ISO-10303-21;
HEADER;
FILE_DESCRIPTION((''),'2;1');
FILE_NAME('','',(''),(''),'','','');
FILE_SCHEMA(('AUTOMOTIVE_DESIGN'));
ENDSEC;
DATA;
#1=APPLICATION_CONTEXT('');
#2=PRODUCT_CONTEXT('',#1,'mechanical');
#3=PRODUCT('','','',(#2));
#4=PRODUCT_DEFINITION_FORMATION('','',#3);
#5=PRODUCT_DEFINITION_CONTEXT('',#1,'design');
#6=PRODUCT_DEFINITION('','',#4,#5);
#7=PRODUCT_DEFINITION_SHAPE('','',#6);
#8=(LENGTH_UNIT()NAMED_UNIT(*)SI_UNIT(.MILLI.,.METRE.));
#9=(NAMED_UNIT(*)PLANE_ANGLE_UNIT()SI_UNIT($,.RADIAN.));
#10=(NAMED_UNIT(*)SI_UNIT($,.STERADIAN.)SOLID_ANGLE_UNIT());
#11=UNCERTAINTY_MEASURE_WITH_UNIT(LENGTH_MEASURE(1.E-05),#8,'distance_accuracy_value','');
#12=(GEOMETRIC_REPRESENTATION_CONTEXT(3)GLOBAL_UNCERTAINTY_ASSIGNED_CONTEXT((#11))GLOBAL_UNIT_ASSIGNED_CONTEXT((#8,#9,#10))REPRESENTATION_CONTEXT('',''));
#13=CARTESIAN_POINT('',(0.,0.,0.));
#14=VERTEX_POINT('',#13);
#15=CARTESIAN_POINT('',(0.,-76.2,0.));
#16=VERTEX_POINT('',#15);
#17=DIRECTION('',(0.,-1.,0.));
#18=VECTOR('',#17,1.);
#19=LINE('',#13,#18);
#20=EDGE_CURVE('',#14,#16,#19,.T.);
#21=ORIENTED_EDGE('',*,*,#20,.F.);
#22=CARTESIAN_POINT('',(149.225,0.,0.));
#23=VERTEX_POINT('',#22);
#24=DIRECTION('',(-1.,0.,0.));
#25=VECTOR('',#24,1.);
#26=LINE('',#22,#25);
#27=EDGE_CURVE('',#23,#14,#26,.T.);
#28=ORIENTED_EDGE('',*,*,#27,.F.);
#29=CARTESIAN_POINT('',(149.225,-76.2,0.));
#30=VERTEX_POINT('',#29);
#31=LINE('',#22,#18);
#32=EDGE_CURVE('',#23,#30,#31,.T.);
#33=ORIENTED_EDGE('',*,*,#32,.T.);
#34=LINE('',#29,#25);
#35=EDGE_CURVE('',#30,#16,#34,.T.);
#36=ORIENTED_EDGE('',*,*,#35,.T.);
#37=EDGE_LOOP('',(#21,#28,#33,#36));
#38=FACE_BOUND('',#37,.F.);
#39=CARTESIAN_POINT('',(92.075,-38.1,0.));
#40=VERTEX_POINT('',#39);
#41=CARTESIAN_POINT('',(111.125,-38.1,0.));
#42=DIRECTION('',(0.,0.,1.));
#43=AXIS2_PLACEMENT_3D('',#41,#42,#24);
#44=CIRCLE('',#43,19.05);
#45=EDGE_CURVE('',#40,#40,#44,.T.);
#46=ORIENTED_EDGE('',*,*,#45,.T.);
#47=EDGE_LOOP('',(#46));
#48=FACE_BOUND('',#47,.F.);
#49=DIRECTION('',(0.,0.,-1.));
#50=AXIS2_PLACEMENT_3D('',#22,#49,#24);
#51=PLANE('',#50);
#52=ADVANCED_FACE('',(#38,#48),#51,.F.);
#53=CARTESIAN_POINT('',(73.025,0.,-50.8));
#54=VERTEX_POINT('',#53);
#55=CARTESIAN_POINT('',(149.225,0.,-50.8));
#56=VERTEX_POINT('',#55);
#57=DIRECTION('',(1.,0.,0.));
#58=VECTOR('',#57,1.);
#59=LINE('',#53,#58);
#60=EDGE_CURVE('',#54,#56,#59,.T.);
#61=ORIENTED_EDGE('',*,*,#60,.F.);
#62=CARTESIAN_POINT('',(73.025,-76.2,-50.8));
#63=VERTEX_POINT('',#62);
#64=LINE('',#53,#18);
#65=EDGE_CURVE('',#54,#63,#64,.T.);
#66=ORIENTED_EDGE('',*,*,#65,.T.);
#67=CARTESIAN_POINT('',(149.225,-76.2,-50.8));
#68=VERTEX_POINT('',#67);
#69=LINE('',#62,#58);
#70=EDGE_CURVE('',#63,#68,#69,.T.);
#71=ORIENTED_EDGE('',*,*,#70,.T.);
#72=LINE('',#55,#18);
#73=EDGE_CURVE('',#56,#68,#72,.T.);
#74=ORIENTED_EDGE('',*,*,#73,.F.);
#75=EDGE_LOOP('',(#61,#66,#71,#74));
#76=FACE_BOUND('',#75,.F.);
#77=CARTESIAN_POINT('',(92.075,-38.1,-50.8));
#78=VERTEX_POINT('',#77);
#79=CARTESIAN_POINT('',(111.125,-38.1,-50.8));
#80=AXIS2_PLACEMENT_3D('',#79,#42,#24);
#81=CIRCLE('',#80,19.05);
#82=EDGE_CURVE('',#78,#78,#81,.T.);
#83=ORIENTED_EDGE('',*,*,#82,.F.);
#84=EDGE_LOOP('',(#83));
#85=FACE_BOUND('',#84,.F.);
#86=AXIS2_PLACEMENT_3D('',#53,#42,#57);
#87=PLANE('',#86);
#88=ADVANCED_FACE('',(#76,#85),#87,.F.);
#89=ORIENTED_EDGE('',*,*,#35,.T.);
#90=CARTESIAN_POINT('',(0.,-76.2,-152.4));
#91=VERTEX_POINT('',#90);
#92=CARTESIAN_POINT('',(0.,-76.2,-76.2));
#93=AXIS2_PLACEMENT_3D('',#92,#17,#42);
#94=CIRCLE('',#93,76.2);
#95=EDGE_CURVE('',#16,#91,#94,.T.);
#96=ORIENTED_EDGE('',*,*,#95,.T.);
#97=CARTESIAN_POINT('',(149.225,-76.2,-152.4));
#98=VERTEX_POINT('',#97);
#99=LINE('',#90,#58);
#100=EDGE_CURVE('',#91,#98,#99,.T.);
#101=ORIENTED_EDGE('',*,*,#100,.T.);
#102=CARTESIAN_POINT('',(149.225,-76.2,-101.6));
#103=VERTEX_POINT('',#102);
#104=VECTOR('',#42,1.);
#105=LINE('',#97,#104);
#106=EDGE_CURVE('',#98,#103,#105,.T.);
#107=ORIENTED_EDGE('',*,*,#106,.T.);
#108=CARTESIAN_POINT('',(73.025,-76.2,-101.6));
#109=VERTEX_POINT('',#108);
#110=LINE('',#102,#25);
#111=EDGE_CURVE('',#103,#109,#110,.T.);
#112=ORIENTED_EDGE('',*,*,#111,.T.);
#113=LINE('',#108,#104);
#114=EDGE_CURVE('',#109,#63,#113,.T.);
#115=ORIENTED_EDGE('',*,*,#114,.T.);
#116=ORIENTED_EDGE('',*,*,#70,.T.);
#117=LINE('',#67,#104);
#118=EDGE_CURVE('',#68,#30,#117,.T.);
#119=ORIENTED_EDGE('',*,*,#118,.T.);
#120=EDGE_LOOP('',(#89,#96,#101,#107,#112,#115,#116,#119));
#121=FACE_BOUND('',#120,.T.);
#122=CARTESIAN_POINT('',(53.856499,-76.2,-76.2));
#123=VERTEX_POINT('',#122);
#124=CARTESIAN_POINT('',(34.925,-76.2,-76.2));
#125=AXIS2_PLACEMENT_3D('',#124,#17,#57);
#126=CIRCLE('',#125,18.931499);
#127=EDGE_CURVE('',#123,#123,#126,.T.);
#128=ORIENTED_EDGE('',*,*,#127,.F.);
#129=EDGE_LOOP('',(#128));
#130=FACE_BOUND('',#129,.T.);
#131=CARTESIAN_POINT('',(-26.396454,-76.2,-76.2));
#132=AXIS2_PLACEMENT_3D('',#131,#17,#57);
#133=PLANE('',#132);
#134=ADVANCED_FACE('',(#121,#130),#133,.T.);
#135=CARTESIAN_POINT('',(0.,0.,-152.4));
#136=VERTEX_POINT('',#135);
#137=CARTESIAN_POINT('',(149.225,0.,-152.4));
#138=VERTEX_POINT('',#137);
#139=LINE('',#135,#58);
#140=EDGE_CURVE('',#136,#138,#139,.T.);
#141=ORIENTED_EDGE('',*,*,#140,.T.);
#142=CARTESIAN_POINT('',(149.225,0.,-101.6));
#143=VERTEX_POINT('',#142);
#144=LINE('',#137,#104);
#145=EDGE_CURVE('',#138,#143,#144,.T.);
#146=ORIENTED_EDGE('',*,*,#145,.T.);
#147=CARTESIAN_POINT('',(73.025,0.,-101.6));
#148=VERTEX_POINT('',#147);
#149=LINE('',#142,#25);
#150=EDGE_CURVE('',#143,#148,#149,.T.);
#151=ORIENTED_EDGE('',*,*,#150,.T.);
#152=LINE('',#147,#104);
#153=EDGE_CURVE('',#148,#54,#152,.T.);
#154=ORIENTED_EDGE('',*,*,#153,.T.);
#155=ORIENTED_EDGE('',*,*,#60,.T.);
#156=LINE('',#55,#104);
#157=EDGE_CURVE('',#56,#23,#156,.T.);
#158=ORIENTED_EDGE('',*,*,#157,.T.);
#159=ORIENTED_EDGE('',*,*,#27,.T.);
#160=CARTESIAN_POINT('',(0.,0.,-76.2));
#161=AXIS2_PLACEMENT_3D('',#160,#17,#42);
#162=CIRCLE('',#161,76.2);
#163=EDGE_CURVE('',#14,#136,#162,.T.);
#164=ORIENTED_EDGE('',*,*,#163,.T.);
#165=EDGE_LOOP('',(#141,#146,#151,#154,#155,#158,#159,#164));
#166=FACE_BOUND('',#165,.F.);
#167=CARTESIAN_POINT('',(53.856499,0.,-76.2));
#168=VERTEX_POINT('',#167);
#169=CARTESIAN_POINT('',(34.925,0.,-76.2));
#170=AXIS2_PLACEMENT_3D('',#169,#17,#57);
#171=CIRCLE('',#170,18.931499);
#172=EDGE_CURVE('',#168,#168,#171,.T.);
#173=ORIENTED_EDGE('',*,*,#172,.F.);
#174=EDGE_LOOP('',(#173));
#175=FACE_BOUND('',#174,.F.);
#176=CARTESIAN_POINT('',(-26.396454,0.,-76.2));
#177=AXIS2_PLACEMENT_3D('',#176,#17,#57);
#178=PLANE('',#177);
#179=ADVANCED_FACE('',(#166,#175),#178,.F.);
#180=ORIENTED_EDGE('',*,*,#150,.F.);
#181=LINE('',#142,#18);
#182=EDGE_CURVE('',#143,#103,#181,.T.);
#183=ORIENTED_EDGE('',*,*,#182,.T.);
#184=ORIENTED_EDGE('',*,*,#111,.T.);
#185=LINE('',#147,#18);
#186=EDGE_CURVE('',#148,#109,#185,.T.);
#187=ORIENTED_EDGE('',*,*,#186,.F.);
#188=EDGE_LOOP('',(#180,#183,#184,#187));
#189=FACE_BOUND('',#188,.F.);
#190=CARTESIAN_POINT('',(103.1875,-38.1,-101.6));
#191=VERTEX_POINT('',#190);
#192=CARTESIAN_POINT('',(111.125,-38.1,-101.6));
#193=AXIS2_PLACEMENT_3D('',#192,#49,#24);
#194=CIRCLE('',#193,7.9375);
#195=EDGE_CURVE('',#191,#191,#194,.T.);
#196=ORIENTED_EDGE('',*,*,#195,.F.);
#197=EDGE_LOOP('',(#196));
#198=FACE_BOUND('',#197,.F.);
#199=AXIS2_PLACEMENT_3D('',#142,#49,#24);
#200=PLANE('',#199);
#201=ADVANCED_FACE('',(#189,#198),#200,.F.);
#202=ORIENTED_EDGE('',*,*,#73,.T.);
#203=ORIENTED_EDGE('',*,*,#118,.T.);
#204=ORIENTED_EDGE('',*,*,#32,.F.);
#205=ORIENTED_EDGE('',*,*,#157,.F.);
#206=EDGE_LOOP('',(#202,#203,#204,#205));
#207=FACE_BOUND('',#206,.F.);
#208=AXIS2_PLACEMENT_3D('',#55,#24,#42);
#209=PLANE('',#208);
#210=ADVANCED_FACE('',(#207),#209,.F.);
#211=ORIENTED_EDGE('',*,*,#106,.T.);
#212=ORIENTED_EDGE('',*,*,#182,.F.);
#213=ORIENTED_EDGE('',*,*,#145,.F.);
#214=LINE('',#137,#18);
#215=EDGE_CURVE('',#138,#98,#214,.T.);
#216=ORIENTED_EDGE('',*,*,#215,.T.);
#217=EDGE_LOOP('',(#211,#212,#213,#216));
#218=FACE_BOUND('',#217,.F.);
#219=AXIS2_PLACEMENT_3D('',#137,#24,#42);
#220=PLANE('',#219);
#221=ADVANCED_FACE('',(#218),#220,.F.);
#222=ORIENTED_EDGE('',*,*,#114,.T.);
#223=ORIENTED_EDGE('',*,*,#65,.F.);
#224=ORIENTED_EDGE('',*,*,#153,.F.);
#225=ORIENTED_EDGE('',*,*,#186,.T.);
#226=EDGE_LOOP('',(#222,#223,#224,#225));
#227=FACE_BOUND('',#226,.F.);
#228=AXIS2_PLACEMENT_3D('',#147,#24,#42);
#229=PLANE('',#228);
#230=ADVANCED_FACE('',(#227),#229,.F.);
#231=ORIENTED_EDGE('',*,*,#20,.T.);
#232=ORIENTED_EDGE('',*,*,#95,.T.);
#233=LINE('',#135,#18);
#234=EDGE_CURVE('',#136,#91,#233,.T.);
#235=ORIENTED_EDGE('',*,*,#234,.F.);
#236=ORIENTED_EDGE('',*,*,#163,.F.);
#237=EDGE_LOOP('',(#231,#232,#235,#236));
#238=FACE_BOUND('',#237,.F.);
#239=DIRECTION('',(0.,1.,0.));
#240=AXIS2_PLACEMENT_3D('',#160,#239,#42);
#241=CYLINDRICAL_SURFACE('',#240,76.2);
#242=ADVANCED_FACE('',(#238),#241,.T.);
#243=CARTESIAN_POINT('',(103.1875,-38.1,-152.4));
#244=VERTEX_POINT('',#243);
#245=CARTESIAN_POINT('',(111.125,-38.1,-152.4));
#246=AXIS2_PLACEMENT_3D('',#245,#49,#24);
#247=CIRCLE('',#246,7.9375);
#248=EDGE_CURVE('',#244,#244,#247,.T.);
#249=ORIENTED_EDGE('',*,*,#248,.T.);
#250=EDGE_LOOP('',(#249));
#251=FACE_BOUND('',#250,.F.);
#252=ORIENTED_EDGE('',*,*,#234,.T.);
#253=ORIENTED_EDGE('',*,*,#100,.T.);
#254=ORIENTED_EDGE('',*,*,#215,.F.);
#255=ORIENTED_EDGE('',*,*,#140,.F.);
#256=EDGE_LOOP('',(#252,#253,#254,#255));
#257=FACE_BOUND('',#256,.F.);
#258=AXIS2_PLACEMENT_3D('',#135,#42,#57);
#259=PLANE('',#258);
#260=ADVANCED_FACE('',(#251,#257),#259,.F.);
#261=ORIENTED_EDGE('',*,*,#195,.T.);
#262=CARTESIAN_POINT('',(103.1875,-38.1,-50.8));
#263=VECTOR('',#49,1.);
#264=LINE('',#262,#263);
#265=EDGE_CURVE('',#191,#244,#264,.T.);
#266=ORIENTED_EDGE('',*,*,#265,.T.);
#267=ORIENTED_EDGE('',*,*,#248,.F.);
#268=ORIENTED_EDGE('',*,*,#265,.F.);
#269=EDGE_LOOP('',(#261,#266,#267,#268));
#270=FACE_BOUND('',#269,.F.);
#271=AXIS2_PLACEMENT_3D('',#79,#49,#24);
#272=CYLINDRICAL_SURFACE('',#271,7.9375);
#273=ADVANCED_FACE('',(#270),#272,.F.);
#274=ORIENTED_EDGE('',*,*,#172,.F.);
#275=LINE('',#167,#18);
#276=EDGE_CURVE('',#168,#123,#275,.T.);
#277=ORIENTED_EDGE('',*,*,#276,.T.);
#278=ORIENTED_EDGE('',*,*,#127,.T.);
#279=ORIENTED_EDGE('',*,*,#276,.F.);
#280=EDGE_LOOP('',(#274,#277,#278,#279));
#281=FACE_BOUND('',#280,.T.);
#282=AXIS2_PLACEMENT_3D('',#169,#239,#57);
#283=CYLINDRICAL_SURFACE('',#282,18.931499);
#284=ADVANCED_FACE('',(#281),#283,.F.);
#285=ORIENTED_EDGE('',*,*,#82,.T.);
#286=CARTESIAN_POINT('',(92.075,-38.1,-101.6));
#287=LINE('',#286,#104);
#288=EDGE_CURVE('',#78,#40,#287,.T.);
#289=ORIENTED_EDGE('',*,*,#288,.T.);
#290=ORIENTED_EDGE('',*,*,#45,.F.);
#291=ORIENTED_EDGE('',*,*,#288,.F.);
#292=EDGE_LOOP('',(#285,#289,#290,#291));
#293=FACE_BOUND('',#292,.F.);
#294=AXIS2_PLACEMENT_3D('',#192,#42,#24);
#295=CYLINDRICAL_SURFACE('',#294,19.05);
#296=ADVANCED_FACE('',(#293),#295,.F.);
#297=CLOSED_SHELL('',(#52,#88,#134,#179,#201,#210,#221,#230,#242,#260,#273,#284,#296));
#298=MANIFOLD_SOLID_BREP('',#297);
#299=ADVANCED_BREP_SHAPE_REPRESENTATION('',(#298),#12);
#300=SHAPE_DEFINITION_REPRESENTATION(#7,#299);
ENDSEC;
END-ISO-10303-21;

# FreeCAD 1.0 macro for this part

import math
import FreeCAD as App
import Part
import Sketcher

V = App.Vector
Q = App.Units.Quantity

doc = App.newDocument("Part")
body = doc.addObject("PartDesign::Body", "Body")

sketch1 = doc.addObject("Sketcher::SketchObject", "Sketch")
body.addObject(sketch1)
sketch1.AttachmentSupport = (doc.XZ_Plane, [""])
sketch1.MapMode = "FlatFace"
sketch1.addGeometry([
    Part.ArcOfCircle(Part.Circle(V(0, -76, 0), V(0, 0, 1), 76), math.radians(90), math.radians(270)),
    Part.LineSegment(V(0, -152, 0), V(149, -152, 0)),
    Part.LineSegment(V(149, -152, 0), V(149, -102, 0)),
    Part.LineSegment(V(149, -102, 0), V(73, -102, 0)),
    Part.LineSegment(V(73, -102, 0), V(73, -51, 0)),
    Part.LineSegment(V(73, -51, 0), V(149, -51, 0)),
    Part.LineSegment(V(149, -51, 0), V(149, 0, 0)),
    Part.LineSegment(V(149, 0, 0), V(0, 0, 0)),
    Part.Circle(V(35, -76, 0), V(0, 0, 1), 19),
], False)
sketch1.addConstraint([
    Sketcher.Constraint("Tangent", 0, 2, 1, 1),
    Sketcher.Constraint("Coincident", 1, 2, 2, 1),
    Sketcher.Constraint("Coincident", 2, 2, 3, 1),
    Sketcher.Constraint("Coincident", 3, 2, 4, 1),
    Sketcher.Constraint("Coincident", 4, 2, 5, 1),
    Sketcher.Constraint("Coincident", 5, 2, 6, 1),
    Sketcher.Constraint("Coincident", 6, 2, 7, 1),
    Sketcher.Constraint("Tangent", 7, 2, 0, 1),
    Sketcher.Constraint("Horizontal", 1),
    Sketcher.Constraint("Vertical", 2),
    Sketcher.Constraint("Horizontal", 3),
    Sketcher.Constraint("Vertical", 4),
    Sketcher.Constraint("Horizontal", 5),
    Sketcher.Constraint("Vertical", 6),
    Sketcher.Constraint("Horizontal", 7),
    Sketcher.Constraint("Coincident", 7, 2, -1, 1),
    Sketcher.Constraint("Horizontal", 0, 3, 8, 3),
    Sketcher.Constraint("Vertical", 2, 2, 5, 2),
    Sketcher.Constraint("Equal", 2, 4),
    Sketcher.Constraint("Equal", 4, 6),
    Sketcher.Constraint("Radius", 0, Q("3 in")),
    Sketcher.Constraint("DistanceX", 3, 2, 3, 1, Q("3 in")),
    Sketcher.Constraint("DistanceX", 8, 3, 1, 2, Q("4.5 in")),
    Sketcher.Constraint("DistanceX", 1, 1, 1, 2, Q("5.875 in")),
    Sketcher.Constraint("Diameter", 8, Q("37.862998 mm")),
])
pad1 = doc.addObject("PartDesign::Pad", "Pad")
body.addObject(pad1)
pad1.Profile = sketch1
pad1.Length = Q("3 in")

sketch2 = doc.addObject("Sketcher::SketchObject", "Sketch001")
body.addObject(sketch2)
sketch2.AttachmentSupport = (doc.XY_Plane, [""])
sketch2.MapMode = "FlatFace"
sketch2.AttachmentOffset = App.Placement(V(0, 0, -2 * 25.4), App.Rotation())
sketch2.addGeometry(Part.Circle(V(111, -38, 0), V(0, 0, 1), 19), False)
sketch2.addConstraint([
    Sketcher.Constraint("Diameter", 0, Q("1.5 in")),
    Sketcher.Constraint("DistanceY", 0, 3, -1, 1, Q("1.5 in")),
    Sketcher.Constraint("DistanceX", -1, 1, 0, 3, Q("4.375 in")),
])
doc.recompute()
hole = doc.addObject("PartDesign::Hole", "Hole")
body.addObject(hole)
hole.Profile = sketch2
hole.ThreadType = "None"
hole.Diameter = Q("1.5 in")
hole.DepthType = "Dimension"
hole.Depth = Q("2 in")
hole.DrillPoint = "Flat"
hole.Reversed = True

sketch3 = doc.addObject("Sketcher::SketchObject", "Sketch002")
body.addObject(sketch3)
sketch3.AttachmentSupport = (doc.XY_Plane, [""])
sketch3.MapMode = "FlatFace"
sketch3.AttachmentOffset = App.Placement(V(0, 0, -4 * 25.4), App.Rotation())
sketch3.addGeometry(Part.Circle(V(111, -38, 0), V(0, 0, 1), 8), False)
sketch3.addConstraint([
    Sketcher.Constraint("Diameter", 0, Q("0.625 in")),
    Sketcher.Constraint("DistanceY", 0, 3, -1, 1, Q("1.5 in")),
    Sketcher.Constraint("DistanceX", -1, 1, 0, 3, Q("4.375 in")),
])
doc.recompute()
hole2 = doc.addObject("PartDesign::Hole", "Hole001")
body.addObject(hole2)
hole2.Profile = sketch3
hole2.ThreadType = "None"
hole2.Diameter = Q("0.625 in")
hole2.DepthType = "Dimension"
hole2.Depth = Q("2 in")
hole2.DrillPoint = "Flat"

doc.recompute()
